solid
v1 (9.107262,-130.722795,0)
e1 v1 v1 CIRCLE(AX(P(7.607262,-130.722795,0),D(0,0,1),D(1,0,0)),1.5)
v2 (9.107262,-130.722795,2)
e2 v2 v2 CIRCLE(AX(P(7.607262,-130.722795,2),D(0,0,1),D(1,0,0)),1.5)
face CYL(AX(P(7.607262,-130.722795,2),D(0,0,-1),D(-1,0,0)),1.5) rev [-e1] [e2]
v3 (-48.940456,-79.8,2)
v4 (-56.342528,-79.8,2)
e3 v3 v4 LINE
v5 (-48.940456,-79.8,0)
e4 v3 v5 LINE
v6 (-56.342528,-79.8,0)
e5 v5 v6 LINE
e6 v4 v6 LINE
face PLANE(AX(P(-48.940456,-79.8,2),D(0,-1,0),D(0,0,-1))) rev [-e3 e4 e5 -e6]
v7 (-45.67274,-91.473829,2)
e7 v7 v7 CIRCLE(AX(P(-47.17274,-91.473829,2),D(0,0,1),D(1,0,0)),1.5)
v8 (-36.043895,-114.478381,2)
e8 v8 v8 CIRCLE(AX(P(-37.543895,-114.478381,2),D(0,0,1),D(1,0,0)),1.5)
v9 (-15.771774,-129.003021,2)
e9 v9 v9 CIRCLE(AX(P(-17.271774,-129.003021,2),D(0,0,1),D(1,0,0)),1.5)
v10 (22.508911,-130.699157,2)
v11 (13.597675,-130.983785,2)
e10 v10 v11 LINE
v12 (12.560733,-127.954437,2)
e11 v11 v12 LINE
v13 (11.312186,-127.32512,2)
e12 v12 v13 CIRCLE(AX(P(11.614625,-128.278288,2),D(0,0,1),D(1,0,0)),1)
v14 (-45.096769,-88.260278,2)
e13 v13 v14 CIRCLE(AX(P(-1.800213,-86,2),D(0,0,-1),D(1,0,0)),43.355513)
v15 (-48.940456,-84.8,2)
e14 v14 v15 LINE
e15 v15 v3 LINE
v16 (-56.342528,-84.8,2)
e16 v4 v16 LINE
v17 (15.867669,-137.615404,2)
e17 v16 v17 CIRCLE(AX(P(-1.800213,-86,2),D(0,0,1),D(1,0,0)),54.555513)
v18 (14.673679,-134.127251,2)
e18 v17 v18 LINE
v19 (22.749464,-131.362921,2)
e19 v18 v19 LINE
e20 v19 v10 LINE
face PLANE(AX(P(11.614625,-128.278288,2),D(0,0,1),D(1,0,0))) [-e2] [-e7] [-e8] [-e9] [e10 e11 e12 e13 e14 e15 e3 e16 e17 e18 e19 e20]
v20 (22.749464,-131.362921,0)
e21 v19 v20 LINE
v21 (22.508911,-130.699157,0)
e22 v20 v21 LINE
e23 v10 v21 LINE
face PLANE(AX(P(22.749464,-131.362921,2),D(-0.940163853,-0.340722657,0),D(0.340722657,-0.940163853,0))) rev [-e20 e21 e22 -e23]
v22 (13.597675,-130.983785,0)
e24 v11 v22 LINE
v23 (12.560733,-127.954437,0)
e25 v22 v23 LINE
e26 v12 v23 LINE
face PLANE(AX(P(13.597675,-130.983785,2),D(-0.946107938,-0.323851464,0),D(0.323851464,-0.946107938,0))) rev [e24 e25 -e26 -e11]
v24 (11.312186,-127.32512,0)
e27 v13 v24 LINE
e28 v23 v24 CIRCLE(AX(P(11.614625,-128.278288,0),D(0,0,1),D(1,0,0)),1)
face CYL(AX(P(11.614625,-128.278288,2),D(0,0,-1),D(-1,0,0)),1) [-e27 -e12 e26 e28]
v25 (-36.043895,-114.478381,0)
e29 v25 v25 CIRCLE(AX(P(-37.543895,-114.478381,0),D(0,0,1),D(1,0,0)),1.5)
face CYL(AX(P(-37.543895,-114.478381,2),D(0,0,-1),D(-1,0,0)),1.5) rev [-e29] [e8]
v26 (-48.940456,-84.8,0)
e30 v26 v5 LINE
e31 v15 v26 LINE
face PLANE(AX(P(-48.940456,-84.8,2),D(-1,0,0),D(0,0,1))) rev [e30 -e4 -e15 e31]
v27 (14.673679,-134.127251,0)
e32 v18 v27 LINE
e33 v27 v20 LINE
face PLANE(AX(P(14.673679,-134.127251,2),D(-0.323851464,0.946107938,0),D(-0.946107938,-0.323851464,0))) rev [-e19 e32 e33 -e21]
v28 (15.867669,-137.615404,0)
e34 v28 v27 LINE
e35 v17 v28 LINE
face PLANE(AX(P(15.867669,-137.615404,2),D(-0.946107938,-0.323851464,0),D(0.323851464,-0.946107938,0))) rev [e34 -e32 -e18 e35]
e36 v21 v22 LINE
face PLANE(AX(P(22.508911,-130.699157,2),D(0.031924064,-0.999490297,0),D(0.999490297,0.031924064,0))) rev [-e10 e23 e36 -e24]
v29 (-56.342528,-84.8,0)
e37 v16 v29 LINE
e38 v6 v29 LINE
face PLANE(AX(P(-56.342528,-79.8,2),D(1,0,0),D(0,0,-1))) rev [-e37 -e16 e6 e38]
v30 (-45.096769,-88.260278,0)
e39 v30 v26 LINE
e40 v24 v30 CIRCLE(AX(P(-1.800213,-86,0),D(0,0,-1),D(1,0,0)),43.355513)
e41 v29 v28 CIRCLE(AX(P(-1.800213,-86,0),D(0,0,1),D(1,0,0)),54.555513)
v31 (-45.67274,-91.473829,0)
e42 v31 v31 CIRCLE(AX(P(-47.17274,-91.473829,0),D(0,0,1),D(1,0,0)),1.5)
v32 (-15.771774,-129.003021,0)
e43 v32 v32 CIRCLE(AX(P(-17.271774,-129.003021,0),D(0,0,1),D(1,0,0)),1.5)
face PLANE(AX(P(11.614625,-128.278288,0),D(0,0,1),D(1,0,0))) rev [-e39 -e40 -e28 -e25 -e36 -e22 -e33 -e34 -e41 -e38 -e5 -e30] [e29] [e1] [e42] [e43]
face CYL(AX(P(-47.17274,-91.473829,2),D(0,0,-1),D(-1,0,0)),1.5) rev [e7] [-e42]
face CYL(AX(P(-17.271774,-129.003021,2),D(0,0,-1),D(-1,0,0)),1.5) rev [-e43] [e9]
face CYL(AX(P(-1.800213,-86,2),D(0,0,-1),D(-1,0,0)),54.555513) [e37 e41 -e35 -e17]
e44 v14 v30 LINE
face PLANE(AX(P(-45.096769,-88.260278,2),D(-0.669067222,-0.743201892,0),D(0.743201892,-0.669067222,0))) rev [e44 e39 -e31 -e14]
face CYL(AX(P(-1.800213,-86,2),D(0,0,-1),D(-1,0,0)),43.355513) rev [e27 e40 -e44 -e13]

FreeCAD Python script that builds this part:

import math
import FreeCAD as App
import Part
import Sketcher

V = App.Vector

doc = App.newDocument("Part")
body = doc.addObject("PartDesign::Body", "Body")

sketch1 = doc.addObject("Sketcher::SketchObject", "Sketch")
body.addObject(sketch1)
sketch1.AttachmentSupport = (doc.XY_Plane, [""])
sketch1.MapMode = "FlatFace"
sketch1.addGeometry([
    Part.LineSegment(V(22.5, -130.7, 0), V(13.6, -131, 0)),
    Part.LineSegment(V(13.6, -131, 0), V(12.6, -128, 0)),
    Part.ArcOfCircle(Part.Circle(V(11.6, -128.3, 0), V(0, 0, 1), 1), math.radians(19), math.radians(108)),
    Part.ArcOfCircle(Part.Circle(V(-1.8, -86, 0), V(0, 0, 1), 43.4), math.radians(-177), math.radians(-72)),
    Part.LineSegment(V(-45.1, -88.3, 0), V(-48.9, -84.8, 0)),
    Part.LineSegment(V(-48.9, -84.8, 0), V(-48.9, -79.8, 0)),
    Part.LineSegment(V(-48.9, -79.8, 0), V(-56.3, -79.8, 0)),
    Part.LineSegment(V(-56.3, -79.8, 0), V(-56.3, -84.8, 0)),
    Part.ArcOfCircle(Part.Circle(V(-1.8, -86, 0), V(0, 0, 1), 54.6), math.radians(179), math.radians(289)),
    Part.LineSegment(V(15.9, -137.6, 0), V(14.7, -134.1, 0)),
    Part.LineSegment(V(14.7, -134.1, 0), V(22.7, -131.4, 0)),
    Part.LineSegment(V(22.7, -131.4, 0), V(22.5, -130.7, 0)),
    Part.Circle(V(-37.5, -114.5, 0), V(0, 0, 1), 1.5),
    Part.Circle(V(-17.3, -129, 0), V(0, 0, 1), 1.5),
    Part.Circle(V(7.6, -130.7, 0), V(0, 0, 1), 1.5),
    Part.Circle(V(-47.2, -91.5, 0), V(0, 0, 1), 1.5),
], False)
sketch1.addConstraint([
    Sketcher.Constraint("Coincident", 0, 2, 1, 1),
    Sketcher.Constraint("Tangent", 1, 2, 2, 1),
    Sketcher.Constraint("Tangent", 2, 2, 3, 2),
    Sketcher.Constraint("Coincident", 3, 1, 4, 1),
    Sketcher.Constraint("Coincident", 4, 2, 5, 1),
    Sketcher.Constraint("Coincident", 5, 2, 6, 1),
    Sketcher.Constraint("Coincident", 6, 2, 7, 1),
    Sketcher.Constraint("Coincident", 7, 2, 8, 1),
    Sketcher.Constraint("Coincident", 8, 2, 9, 1),
    Sketcher.Constraint("Coincident", 9, 2, 10, 1),
    Sketcher.Constraint("Coincident", 10, 2, 11, 1),
    Sketcher.Constraint("Coincident", 11, 2, 0, 1),
    Sketcher.Constraint("Vertical", 5),
    Sketcher.Constraint("Horizontal", 6),
    Sketcher.Constraint("Vertical", 7),
    Sketcher.Constraint("Coincident", 8, 3, 3, 3),
    Sketcher.Constraint("Equal", 12, 13),
    Sketcher.Constraint("Equal", 13, 14),
    Sketcher.Constraint("Equal", 14, 15),
    Sketcher.Constraint("Parallel", 1, 9),
    Sketcher.Constraint("Perpendicular", 9, 10),
    Sketcher.Constraint("Horizontal", 4, 2, 7, 2),
    Sketcher.Constraint("Diameter", 12, 3.0),
    Sketcher.Constraint("Radius", 2, 1.0),
    Sketcher.Constraint("DistanceY", 5, 1, 5, 2, 5.0),
    Sketcher.Constraint("DistanceY", 3, 3, -1, 1, 86.0),
    Sketcher.Constraint("DistanceY", 4, 2, -1, 1, 84.8),
    Sketcher.Constraint("Radius", 3, 43.355513),
    Sketcher.Constraint("Radius", 8, 54.555513),
    Sketcher.Constraint("DistanceX", 6, 2, 6, 1, 7.402072),
    Sketcher.Constraint("DistanceX", 13, 3, 2, 3, 28.886399),
    Sketcher.Constraint("DistanceY", 13, 3, 2, 2, 1.677901),
    Sketcher.Constraint("Distance", 0, 8.915781),
    Sketcher.Constraint("Distance", 11, 0.706008),
    Sketcher.Constraint("DistanceY", 2, 3, -1, 1, 128.278288),
    Sketcher.Constraint("DistanceY", 12, 3, -1, 1, 114.478381),
    Sketcher.Constraint("DistanceX", 15, 3, -1, 1, 47.17274),
    Sketcher.Constraint("DistanceY", 15, 3, -1, 1, 91.473829),
    Sketcher.Constraint("DistanceX", 3, 1, -1, 1, 45.096769),
    Sketcher.Constraint("DistanceX", -1, 1, 8, 2, 15.867669),
    Sketcher.Constraint("DistanceX", -1, 1, 9, 2, 14.673679),
    Sketcher.Constraint("DistanceY", 9, 2, -1, 1, 134.127251),
    Sketcher.Constraint("DistanceY", 10, 2, -1, 1, 131.362921),
    Sketcher.Constraint("DistanceX", -1, 1, 11, 2, 22.508911),
    Sketcher.Constraint("DistanceX", 12, 3, 3, 3, 35.743682),
    Sketcher.Constraint("DistanceX", 2, 3, 0, 2, 1.98305),
    Sketcher.Constraint("DistanceY", 0, 2, 14, 3, 0.26099),
    Sketcher.Constraint("DistanceX", 14, 3, 1, 2, 4.953471),
])
pad1 = doc.addObject("PartDesign::Pad", "Pad")
body.addObject(pad1)
pad1.Profile = sketch1
pad1.Length = 2

doc.recompute()
